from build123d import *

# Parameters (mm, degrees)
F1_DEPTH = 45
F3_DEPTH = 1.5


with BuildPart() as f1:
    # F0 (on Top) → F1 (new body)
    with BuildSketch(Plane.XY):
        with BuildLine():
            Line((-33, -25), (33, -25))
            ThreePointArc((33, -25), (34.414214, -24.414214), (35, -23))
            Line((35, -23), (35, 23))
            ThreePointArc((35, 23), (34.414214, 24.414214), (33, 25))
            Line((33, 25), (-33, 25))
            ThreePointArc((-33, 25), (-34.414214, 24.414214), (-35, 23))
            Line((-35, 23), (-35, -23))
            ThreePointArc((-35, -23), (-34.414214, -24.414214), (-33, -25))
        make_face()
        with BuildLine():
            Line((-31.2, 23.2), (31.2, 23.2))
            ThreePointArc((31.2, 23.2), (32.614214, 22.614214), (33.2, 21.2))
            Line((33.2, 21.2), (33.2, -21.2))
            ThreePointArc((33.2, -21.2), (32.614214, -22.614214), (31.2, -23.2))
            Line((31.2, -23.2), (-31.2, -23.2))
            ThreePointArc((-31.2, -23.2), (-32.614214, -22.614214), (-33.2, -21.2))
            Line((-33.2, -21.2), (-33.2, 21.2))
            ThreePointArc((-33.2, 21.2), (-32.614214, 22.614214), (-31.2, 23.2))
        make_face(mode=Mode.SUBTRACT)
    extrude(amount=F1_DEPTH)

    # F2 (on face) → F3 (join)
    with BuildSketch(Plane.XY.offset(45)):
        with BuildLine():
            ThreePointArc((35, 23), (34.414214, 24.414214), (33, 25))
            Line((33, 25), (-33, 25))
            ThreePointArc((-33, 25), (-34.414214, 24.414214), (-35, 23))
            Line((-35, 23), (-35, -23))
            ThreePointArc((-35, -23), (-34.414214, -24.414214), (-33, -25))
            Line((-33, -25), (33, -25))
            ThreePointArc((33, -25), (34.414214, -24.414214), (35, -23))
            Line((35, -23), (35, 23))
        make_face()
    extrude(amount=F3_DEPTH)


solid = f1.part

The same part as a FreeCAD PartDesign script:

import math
import FreeCAD as App
import Part
import Sketcher
from FreeCAD import Vector
Q = App.Units.Quantity

doc = App.newDocument("Part")
body = doc.addObject("PartDesign::Body", "Body")

# Sketch on XY plane
sketch1 = body.newObject("Sketcher::SketchObject", "Sketch")
sketch1.AttachmentSupport = (doc.getObject("XY_Plane"), [""])
sketch1.MapMode = "FlatFace"
sketch1.addGeometry([
    Part.LineSegment(Vector(-33, -25, 0), Vector(33, -25, 0)),  # 0
    Part.ArcOfCircle(Part.Circle(Vector(33.000001, -23.000001, 0), Vector(0, 0, 1), 1.999999), math.radians(-90.000043), math.radians(0.000043)),  # 1
    Part.LineSegment(Vector(35, -23, 0), Vector(35, 23, 0)),  # 2
    Part.ArcOfCircle(Part.Circle(Vector(33.000001, 23.000001, 0), Vector(0, 0, 1), 1.999999), math.radians(-0.000043), math.radians(90.000043)),  # 3
    Part.LineSegment(Vector(33, 25, 0), Vector(-33, 25, 0)),  # 4
    Part.ArcOfCircle(Part.Circle(Vector(-33.000001, 23.000001, 0), Vector(0, 0, 1), 1.999999), math.radians(89.999957), math.radians(180.000043)),  # 5
    Part.LineSegment(Vector(-35, 23, 0), Vector(-35, -23, 0)),  # 6
    Part.ArcOfCircle(Part.Circle(Vector(-33.000001, -23.000001, 0), Vector(0, 0, 1), 1.999999), math.radians(179.999957), math.radians(270.000043)),  # 7
    Part.ArcOfCircle(Part.Circle(Vector(-31.200001, 21.200001, 0), Vector(0, 0, 1), 1.999999), math.radians(89.999957), math.radians(180.000043)),  # 8
    Part.LineSegment(Vector(-31.2, 23.2, 0), Vector(31.2, 23.2, 0)),  # 9
    Part.ArcOfCircle(Part.Circle(Vector(31.200001, 21.200001, 0), Vector(0, 0, 1), 1.999999), math.radians(-0.000043), math.radians(90.000043)),  # 10
    Part.LineSegment(Vector(33.2, 21.2, 0), Vector(33.2, -21.2, 0)),  # 11
    Part.ArcOfCircle(Part.Circle(Vector(31.200001, -21.200001, 0), Vector(0, 0, 1), 1.999999), math.radians(-90.000043), math.radians(0.000043)),  # 12
    Part.LineSegment(Vector(31.2, -23.2, 0), Vector(-31.2, -23.2, 0)),  # 13
    Part.ArcOfCircle(Part.Circle(Vector(-31.200001, -21.200001, 0), Vector(0, 0, 1), 1.999999), math.radians(179.999957), math.radians(270.000043)),  # 14
    Part.LineSegment(Vector(-33.2, -21.2, 0), Vector(-33.2, 21.2, 0)),  # 15
], False)
sketch1.addConstraint([
    Sketcher.Constraint("Tangent", 0, 2, 1, 1),
    Sketcher.Constraint("Tangent", 1, 2, 2, 1),
    Sketcher.Constraint("Tangent", 2, 2, 3, 1),
    Sketcher.Constraint("Tangent", 3, 2, 4, 1),
    Sketcher.Constraint("Tangent", 4, 2, 5, 1),
    Sketcher.Constraint("Tangent", 5, 2, 6, 1),
    Sketcher.Constraint("Tangent", 6, 2, 7, 1),
    Sketcher.Constraint("Tangent", 7, 2, 0, 1),
    Sketcher.Constraint("Tangent", 8, 1, 9, 1),
    Sketcher.Constraint("Tangent", 9, 2, 10, 2),
    Sketcher.Constraint("Tangent", 10, 1, 11, 1),
    Sketcher.Constraint("Tangent", 11, 2, 12, 2),
    Sketcher.Constraint("Tangent", 12, 1, 13, 1),
    Sketcher.Constraint("Tangent", 13, 2, 14, 2),
    Sketcher.Constraint("Tangent", 14, 1, 15, 1),
    Sketcher.Constraint("Tangent", 15, 2, 8, 2),
    Sketcher.Constraint("Horizontal", 0),
    Sketcher.Constraint("Vertical", 2),
    Sketcher.Constraint("Horizontal", 4),
    Sketcher.Constraint("Vertical", 6),
    Sketcher.Constraint("Horizontal", 9),
    Sketcher.Constraint("Vertical", 11),
    Sketcher.Constraint("Horizontal", 13),
    Sketcher.Constraint("Vertical", 15),
    Sketcher.Constraint("Equal", 1, 3),
    Sketcher.Constraint("Equal", 3, 5),
    Sketcher.Constraint("Equal", 5, 7),
    Sketcher.Constraint("Equal", 7, 8),
    Sketcher.Constraint("Equal", 8, 10),
    Sketcher.Constraint("Equal", 10, 12),
    Sketcher.Constraint("Equal", 12, 14),
    Sketcher.Constraint("Symmetric", 1, 3, 5, 3, -1, 1),
    Sketcher.Constraint("Symmetric", 8, 3, 12, 3, -1, 1),
    Sketcher.Constraint("Radius", 1, Q("1.999999 mm")),
    Sketcher.Constraint("DistanceX", 0, 1, 0, 2, Q("66 mm")),
    Sketcher.Constraint("DistanceY", 2, 1, 2, 2, Q("46 mm")),
    Sketcher.Constraint("DistanceX", 9, 1, 9, 2, Q("62.4 mm")),
    Sketcher.Constraint("DistanceY", 11, 2, 11, 1, Q("42.4 mm")),
])
pad1 = body.newObject("PartDesign::Pad", "Pad")
pad1.Profile = sketch1
pad1.Length = 45

# Sketch on XY plane
sketch2 = body.newObject("Sketcher::SketchObject", "Sketch001")
sketch2.AttachmentSupport = (doc.getObject("XY_Plane"), [""])
sketch2.MapMode = "FlatFace"
sketch2.AttachmentOffset = App.Placement(Vector(0, 0, 45), App.Rotation())
sketch2.addGeometry([
    Part.ArcOfCircle(Part.Circle(Vector(33.000001, 23.000001, 0), Vector(0, 0, 1), 1.999999), math.radians(-0.000043), math.radians(90.000043)),  # 0
    Part.LineSegment(Vector(33, 25, 0), Vector(-33, 25, 0)),  # 1
    Part.ArcOfCircle(Part.Circle(Vector(-33.000001, 23.000001, 0), Vector(0, 0, 1), 1.999999), math.radians(89.999957), math.radians(180.000043)),  # 2
    Part.LineSegment(Vector(-35, 23, 0), Vector(-35, -23, 0)),  # 3
    Part.ArcOfCircle(Part.Circle(Vector(-33.000001, -23.000001, 0), Vector(0, 0, 1), 1.999999), math.radians(179.999957), math.radians(270.000043)),  # 4
    Part.LineSegment(Vector(-33, -25, 0), Vector(33, -25, 0)),  # 5
    Part.ArcOfCircle(Part.Circle(Vector(33.000001, -23.000001, 0), Vector(0, 0, 1), 1.999999), math.radians(-90.000043), math.radians(0.000043)),  # 6
    Part.LineSegment(Vector(35, -23, 0), Vector(35, 23, 0)),  # 7
], False)
sketch2.addConstraint([
    Sketcher.Constraint("Tangent", 0, 2, 1, 1),
    Sketcher.Constraint("Tangent", 1, 2, 2, 1),
    Sketcher.Constraint("Tangent", 2, 2, 3, 1),
    Sketcher.Constraint("Tangent", 3, 2, 4, 1),
    Sketcher.Constraint("Tangent", 4, 2, 5, 1),
    Sketcher.Constraint("Tangent", 5, 2, 6, 1),
    Sketcher.Constraint("Tangent", 6, 2, 7, 1),
    Sketcher.Constraint("Tangent", 7, 2, 0, 1),
    Sketcher.Constraint("Horizontal", 1),
    Sketcher.Constraint("Vertical", 3),
    Sketcher.Constraint("Horizontal", 5),
    Sketcher.Constraint("Vertical", 7),
    Sketcher.Constraint("Equal", 0, 2),
    Sketcher.Constraint("Equal", 2, 4),
    Sketcher.Constraint("Equal", 4, 6),
    Sketcher.Constraint("Symmetric", 0, 3, 4, 3, -1, 1),
    Sketcher.Constraint("Radius", 0, Q("1.999999 mm")),
    Sketcher.Constraint("DistanceX", 1, 2, 1, 1, Q("66 mm")),
    Sketcher.Constraint("DistanceY", 3, 2, 3, 1, Q("46 mm")),
])
pad2 = body.newObject("PartDesign::Pad", "Pad001")
pad2.Profile = sketch2
pad2.Length = 1.5

doc.recompute()
